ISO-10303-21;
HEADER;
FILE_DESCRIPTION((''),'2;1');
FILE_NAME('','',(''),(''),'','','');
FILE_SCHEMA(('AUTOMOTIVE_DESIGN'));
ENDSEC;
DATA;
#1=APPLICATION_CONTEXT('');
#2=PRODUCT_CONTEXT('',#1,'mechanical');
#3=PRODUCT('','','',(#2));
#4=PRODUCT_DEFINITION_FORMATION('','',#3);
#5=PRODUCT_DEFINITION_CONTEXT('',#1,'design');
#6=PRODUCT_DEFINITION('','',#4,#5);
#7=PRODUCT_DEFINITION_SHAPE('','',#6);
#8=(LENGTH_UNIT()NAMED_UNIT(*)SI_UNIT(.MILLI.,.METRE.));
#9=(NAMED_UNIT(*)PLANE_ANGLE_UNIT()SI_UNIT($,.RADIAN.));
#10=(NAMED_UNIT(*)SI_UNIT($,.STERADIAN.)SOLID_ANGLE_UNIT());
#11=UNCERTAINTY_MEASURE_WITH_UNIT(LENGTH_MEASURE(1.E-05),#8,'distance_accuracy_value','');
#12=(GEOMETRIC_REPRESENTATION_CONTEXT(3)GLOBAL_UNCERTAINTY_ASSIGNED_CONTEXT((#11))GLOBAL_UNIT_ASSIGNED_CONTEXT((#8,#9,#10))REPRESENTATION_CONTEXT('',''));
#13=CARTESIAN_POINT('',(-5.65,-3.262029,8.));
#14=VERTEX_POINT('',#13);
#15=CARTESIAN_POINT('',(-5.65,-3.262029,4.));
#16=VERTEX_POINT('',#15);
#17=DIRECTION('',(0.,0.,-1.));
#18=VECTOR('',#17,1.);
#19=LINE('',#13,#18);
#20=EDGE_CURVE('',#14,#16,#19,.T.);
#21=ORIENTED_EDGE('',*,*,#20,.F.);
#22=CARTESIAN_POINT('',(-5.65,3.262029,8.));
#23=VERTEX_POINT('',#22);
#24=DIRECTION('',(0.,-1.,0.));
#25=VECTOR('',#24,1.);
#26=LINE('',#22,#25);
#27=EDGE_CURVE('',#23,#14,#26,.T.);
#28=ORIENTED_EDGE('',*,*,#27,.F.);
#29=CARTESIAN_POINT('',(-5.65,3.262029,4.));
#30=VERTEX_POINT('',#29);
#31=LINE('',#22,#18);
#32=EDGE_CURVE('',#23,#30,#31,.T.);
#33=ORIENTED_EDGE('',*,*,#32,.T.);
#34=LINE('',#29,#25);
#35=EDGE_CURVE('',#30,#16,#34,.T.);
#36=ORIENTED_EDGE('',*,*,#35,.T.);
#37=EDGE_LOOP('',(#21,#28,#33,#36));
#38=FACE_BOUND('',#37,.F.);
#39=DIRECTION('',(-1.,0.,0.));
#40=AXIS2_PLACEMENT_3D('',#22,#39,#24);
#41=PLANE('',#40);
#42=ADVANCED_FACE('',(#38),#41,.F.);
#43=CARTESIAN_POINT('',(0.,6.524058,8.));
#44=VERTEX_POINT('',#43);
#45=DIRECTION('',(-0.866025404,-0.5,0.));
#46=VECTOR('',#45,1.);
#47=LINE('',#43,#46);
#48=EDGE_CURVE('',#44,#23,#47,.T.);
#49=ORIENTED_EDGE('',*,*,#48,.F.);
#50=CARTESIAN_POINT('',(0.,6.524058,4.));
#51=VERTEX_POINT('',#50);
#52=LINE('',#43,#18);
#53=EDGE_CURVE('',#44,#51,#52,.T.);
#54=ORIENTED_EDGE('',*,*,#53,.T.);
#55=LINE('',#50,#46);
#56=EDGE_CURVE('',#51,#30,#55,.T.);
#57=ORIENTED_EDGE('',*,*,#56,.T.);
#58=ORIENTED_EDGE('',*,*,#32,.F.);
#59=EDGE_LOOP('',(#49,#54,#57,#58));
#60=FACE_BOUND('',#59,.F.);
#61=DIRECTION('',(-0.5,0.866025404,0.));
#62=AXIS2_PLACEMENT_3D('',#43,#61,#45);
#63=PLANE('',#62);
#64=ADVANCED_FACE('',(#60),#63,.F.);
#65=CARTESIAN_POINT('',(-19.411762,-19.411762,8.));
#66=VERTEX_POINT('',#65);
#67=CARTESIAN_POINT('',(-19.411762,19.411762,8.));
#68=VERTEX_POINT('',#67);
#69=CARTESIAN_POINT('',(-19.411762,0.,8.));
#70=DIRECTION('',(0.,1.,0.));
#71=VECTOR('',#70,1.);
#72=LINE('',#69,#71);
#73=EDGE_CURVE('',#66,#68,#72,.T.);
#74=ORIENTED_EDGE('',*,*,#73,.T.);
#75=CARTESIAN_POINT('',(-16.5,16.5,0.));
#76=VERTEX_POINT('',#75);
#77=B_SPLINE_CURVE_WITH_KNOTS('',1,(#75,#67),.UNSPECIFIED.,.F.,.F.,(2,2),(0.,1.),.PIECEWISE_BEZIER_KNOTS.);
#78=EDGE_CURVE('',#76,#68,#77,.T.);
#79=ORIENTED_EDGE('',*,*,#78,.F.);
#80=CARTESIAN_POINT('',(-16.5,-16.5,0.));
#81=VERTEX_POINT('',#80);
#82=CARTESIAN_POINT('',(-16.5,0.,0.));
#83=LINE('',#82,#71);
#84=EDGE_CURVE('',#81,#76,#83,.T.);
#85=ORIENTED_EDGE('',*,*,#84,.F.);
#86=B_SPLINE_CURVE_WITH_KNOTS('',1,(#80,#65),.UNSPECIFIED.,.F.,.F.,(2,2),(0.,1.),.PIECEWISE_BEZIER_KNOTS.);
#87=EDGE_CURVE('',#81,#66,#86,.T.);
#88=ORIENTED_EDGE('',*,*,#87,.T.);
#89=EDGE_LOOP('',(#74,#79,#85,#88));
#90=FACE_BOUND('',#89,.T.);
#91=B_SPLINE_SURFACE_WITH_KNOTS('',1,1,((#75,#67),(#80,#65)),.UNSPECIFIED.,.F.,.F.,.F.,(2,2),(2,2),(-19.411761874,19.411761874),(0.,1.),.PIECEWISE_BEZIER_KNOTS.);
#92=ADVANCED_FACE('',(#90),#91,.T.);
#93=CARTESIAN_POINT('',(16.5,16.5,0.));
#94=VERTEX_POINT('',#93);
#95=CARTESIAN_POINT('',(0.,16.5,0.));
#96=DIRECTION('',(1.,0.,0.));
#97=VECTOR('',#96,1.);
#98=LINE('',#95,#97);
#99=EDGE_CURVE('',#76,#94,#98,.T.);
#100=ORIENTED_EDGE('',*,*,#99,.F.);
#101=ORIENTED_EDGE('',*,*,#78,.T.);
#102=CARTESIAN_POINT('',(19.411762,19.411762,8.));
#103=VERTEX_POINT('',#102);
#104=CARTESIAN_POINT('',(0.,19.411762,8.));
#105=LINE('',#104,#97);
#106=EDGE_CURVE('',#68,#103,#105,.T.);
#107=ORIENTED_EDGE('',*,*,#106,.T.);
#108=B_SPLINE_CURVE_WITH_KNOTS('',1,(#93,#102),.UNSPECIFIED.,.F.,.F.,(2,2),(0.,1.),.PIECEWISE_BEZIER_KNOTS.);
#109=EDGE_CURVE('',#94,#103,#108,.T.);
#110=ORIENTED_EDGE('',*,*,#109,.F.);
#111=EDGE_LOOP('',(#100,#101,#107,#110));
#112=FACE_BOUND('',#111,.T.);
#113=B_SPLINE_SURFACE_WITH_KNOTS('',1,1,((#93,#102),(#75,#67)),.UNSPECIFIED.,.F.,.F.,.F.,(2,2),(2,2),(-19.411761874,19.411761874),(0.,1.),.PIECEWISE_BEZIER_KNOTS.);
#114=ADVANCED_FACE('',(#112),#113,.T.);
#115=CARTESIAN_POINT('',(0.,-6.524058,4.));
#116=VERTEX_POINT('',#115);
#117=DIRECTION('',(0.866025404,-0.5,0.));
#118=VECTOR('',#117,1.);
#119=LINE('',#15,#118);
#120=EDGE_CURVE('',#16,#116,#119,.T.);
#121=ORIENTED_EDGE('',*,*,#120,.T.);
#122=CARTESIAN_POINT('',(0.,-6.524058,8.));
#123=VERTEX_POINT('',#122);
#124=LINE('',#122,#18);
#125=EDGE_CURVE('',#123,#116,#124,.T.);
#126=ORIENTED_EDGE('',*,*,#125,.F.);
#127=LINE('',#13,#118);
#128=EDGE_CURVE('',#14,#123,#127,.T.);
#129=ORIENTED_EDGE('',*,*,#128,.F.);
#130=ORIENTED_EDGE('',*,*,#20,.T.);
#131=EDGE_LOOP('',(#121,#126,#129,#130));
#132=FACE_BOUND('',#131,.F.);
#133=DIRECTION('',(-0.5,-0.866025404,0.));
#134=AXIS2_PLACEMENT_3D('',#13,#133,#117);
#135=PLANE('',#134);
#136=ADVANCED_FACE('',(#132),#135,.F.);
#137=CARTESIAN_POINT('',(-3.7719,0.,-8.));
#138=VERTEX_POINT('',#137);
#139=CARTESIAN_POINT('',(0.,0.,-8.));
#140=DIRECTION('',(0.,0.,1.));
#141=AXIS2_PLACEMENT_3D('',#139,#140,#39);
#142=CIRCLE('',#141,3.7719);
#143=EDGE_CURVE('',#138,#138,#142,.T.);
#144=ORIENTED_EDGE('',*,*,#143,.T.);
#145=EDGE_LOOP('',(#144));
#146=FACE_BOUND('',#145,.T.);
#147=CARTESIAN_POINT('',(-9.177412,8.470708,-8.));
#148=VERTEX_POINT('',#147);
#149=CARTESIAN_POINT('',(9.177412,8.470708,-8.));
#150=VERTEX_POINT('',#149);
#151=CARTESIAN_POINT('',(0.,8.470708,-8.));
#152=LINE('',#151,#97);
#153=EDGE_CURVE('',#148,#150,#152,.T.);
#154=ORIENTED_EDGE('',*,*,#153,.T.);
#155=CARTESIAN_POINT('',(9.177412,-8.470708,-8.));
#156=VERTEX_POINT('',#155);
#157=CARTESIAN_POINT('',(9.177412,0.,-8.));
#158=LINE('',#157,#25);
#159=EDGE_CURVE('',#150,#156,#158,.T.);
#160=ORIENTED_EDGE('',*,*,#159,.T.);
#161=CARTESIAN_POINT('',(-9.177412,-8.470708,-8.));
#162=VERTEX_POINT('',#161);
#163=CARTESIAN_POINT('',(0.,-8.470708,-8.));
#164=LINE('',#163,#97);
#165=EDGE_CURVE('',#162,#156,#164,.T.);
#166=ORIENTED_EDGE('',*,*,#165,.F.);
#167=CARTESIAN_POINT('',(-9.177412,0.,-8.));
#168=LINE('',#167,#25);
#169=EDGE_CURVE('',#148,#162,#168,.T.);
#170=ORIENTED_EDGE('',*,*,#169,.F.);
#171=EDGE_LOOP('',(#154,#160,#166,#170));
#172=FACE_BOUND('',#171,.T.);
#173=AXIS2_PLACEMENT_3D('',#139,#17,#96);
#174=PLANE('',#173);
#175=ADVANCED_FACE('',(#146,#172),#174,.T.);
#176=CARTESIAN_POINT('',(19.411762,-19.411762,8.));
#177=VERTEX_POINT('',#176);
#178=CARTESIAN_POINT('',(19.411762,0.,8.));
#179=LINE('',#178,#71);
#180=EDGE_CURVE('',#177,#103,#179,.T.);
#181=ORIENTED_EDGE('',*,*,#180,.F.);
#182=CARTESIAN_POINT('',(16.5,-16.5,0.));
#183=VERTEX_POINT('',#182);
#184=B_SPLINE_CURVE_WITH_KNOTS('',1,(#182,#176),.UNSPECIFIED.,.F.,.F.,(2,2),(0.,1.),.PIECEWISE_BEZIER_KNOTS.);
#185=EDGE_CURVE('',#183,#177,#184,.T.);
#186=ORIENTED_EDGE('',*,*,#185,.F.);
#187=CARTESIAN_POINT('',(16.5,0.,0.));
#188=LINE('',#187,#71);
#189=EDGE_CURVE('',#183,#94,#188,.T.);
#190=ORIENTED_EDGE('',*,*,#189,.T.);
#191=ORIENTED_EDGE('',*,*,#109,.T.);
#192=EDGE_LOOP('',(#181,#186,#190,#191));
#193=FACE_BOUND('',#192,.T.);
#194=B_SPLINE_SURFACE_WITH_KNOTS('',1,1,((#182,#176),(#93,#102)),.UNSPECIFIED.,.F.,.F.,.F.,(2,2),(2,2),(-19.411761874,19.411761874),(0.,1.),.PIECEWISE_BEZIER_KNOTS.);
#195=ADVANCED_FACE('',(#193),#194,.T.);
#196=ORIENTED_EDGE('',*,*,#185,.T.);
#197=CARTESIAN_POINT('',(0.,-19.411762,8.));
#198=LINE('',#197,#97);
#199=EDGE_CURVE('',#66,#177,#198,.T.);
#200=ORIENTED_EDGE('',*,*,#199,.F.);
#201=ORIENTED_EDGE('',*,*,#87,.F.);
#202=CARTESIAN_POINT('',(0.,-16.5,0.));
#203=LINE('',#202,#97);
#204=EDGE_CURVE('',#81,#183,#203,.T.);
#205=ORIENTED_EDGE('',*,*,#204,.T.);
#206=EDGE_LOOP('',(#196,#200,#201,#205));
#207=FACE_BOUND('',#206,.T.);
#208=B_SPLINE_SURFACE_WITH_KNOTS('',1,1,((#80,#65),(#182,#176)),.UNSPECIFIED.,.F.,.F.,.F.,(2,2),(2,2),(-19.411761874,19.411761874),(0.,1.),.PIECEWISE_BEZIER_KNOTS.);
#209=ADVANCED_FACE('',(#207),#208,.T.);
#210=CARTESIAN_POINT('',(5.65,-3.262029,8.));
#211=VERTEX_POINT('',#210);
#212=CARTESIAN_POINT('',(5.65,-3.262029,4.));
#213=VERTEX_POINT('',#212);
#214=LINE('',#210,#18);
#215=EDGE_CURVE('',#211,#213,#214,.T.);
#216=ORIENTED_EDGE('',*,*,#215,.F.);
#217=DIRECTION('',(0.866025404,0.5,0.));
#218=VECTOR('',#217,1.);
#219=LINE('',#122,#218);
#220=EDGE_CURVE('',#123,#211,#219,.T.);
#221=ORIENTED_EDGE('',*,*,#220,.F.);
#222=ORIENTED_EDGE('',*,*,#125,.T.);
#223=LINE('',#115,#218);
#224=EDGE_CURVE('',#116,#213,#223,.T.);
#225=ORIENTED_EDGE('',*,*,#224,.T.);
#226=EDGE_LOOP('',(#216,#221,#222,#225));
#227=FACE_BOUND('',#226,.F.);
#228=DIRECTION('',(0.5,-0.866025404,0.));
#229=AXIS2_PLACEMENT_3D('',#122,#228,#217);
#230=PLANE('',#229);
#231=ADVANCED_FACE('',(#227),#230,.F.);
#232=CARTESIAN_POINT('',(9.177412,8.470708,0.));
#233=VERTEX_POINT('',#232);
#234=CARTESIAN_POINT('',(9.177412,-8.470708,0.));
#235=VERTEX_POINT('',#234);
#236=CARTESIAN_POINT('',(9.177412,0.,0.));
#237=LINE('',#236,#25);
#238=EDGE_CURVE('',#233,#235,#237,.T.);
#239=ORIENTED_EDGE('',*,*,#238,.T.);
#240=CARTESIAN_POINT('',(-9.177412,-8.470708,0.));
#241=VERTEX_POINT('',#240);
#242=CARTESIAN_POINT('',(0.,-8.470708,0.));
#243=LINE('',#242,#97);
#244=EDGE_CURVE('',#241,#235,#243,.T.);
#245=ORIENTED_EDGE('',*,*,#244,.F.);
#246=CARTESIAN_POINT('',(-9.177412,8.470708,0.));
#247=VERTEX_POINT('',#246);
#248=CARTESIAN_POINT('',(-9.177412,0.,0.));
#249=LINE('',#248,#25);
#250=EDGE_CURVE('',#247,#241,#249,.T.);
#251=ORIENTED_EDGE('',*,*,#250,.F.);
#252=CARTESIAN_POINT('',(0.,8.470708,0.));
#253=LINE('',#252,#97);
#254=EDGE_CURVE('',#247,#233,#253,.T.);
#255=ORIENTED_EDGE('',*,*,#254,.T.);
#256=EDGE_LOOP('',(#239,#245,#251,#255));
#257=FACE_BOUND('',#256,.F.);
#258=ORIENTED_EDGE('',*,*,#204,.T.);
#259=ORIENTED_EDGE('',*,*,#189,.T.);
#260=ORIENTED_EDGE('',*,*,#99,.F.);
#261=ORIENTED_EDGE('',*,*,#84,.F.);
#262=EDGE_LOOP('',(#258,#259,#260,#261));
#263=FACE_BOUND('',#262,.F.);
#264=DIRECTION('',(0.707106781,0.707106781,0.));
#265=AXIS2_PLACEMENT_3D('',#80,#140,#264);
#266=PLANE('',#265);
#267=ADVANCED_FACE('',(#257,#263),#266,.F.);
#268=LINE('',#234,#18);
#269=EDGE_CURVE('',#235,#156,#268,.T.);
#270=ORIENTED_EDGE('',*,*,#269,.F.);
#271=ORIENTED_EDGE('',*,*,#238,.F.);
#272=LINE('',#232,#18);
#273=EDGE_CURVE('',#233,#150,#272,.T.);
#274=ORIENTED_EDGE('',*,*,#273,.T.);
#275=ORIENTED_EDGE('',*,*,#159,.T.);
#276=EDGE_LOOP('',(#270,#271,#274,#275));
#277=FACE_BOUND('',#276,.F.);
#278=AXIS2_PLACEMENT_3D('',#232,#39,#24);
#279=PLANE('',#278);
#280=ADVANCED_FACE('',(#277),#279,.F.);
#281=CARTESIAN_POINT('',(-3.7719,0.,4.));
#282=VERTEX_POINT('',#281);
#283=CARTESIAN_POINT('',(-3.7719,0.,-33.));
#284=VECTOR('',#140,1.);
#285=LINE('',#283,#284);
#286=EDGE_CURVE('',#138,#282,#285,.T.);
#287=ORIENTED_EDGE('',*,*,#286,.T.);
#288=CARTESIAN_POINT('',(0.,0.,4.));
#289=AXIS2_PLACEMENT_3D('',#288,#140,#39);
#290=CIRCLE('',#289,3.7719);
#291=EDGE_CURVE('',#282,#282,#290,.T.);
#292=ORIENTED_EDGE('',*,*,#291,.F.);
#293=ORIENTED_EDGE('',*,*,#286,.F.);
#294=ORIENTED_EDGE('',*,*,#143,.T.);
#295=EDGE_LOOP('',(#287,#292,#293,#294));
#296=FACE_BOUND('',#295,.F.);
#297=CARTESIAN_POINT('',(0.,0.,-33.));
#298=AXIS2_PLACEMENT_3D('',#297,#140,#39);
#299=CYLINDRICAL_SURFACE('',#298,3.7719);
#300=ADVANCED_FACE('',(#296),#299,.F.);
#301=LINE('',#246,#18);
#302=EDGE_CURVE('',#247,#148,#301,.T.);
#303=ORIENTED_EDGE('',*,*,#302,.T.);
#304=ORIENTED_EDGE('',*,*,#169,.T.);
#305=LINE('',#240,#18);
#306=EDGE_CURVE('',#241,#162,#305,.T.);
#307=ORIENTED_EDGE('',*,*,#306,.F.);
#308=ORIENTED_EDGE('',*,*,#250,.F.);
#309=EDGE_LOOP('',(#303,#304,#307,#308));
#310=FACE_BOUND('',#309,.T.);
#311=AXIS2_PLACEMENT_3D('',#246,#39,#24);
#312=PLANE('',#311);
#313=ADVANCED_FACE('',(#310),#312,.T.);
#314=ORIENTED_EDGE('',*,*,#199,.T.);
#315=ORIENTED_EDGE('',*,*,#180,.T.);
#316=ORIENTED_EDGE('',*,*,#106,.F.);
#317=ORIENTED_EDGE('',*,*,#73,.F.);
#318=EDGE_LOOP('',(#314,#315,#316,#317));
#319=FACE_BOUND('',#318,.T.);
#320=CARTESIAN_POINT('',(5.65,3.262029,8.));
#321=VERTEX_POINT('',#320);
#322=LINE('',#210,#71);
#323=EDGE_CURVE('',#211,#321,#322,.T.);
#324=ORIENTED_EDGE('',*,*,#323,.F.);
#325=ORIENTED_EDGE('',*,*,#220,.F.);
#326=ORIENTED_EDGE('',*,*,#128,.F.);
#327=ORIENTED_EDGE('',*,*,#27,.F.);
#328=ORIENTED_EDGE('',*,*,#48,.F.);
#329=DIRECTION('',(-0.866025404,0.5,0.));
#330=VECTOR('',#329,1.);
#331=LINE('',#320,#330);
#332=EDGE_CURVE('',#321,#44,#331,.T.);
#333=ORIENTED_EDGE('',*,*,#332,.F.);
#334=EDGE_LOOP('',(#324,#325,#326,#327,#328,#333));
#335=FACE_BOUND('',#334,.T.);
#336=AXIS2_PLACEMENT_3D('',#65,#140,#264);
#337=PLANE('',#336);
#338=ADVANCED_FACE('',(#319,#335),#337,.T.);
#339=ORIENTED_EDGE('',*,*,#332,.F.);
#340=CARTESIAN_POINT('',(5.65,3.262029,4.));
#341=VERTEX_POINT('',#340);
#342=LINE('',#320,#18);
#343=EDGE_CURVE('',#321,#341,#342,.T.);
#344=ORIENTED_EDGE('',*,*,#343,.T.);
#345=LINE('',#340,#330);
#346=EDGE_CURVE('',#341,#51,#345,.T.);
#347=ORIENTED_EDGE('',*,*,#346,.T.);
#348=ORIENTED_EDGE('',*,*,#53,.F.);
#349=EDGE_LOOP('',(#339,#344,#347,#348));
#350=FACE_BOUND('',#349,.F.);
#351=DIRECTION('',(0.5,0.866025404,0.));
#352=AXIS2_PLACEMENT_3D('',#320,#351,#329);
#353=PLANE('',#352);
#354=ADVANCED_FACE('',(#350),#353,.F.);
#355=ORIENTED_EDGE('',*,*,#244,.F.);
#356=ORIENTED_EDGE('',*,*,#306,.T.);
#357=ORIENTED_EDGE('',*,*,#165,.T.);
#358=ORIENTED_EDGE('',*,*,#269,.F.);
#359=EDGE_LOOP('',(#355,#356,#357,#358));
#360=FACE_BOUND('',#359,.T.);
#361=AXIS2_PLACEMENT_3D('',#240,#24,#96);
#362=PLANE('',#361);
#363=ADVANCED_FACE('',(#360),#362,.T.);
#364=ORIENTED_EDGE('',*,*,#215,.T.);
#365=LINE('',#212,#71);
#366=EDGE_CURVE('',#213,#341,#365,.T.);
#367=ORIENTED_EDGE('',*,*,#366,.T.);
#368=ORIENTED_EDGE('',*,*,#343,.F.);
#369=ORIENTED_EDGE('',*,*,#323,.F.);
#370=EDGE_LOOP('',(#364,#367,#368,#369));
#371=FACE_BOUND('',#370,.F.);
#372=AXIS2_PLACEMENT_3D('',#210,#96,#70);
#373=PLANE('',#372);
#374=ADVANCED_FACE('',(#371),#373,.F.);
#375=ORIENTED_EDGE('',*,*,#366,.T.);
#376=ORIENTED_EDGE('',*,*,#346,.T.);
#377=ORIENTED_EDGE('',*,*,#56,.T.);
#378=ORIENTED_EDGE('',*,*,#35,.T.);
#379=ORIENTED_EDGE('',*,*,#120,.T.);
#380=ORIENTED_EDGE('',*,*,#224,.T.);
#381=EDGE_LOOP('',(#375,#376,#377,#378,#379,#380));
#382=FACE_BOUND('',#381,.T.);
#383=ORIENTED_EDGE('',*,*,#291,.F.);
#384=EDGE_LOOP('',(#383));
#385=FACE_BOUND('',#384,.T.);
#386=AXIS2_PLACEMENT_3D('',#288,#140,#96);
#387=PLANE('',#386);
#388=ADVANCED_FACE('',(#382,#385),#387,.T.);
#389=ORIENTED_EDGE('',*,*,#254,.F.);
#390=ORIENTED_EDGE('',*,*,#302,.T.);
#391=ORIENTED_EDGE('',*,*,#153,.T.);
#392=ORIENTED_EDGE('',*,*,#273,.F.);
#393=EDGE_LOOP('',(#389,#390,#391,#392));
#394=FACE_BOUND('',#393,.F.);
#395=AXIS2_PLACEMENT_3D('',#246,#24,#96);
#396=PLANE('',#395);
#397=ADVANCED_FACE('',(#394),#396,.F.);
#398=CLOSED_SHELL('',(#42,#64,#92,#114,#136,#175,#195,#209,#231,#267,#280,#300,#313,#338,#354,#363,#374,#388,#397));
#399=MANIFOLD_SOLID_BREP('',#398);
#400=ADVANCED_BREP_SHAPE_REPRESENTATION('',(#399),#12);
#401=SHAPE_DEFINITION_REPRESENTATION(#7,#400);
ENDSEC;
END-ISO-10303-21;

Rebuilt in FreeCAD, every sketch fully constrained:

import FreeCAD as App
import Part
import Sketcher

V = App.Vector
Q = App.Units.Quantity

doc = App.newDocument("Part")
params = doc.addObject("Spreadsheet::Sheet", "Params")
for row, (alias, value) in enumerate([
    ("sketch1_width", "33 mm"),
    ("pad1_length", "8 mm"),
    ("pad1_taper", "20 deg"),
    ("pocket1_length", "4 mm"),
    ("pad2_length", "8 mm"),
    ("hole_diameter", "7.5438 mm"),
    ("hole_depth", "25 mm"),
], start=1):
    params.set(f"A{row}", alias)
    params.set(f"B{row}", "=" + value)
    params.setAlias(f"B{row}", alias)

body = doc.addObject("PartDesign::Body", "Body")

sketch1 = doc.addObject("Sketcher::SketchObject", "Sketch")
body.addObject(sketch1)
sketch1.AttachmentSupport = (doc.XY_Plane, [""])
sketch1.MapMode = "FlatFace"
sketch1.addGeometry([
    Part.LineSegment(V(-16, 16, 0), V(-16, -16, 0)),
    Part.LineSegment(V(-16, -16, 0), V(16, -16, 0)),
    Part.LineSegment(V(16, -16, 0), V(16, 16, 0)),
    Part.LineSegment(V(16, 16, 0), V(-16, 16, 0)),
], False)
sketch1.addConstraint([
    Sketcher.Constraint("Coincident", 0, 2, 1, 1),
    Sketcher.Constraint("Coincident", 1, 2, 2, 1),
    Sketcher.Constraint("Coincident", 2, 2, 3, 1),
    Sketcher.Constraint("Coincident", 3, 2, 0, 1),
    Sketcher.Constraint("Vertical", 0),
    Sketcher.Constraint("Horizontal", 1),
    Sketcher.Constraint("Vertical", 2),
    Sketcher.Constraint("Horizontal", 3),
    Sketcher.Constraint("Symmetric", 0, 2, 2, 2, -1, 1),
    Sketcher.Constraint("Equal", 3, 0),
    Sketcher.Constraint("DistanceX", 1, 1, 1, 2, 33.0),
])
sketch1.setExpression("Constraints[10]", "Params.sketch1_width")
pad1 = doc.addObject("PartDesign::Pad", "Pad")
body.addObject(pad1)
pad1.Profile = sketch1
pad1.setExpression("Length", "Params.pad1_length")
pad1.setExpression("TaperAngle", "Params.pad1_taper")

sketch2 = doc.addObject("Sketcher::SketchObject", "Sketch001")
body.addObject(sketch2)
sketch2.AttachmentSupport = (doc.XY_Plane, [""])
sketch2.MapMode = "FlatFace"
sketch2.AttachmentOffset = App.Placement(V(0, 0, 8), App.Rotation())
sketch2.addGeometry([
    Part.LineSegment(V(6, -3, 0), V(6, 3, 0)),
    Part.LineSegment(V(6, 3, 0), V(0, 7, 0)),
    Part.LineSegment(V(0, 7, 0), V(-6, 3, 0)),
    Part.LineSegment(V(-6, 3, 0), V(-6, -3, 0)),
    Part.LineSegment(V(-6, -3, 0), V(0, -7, 0)),
    Part.LineSegment(V(0, -7, 0), V(6, -3, 0)),
], False)
sketch2.addConstraint([
    Sketcher.Constraint("Coincident", 0, 2, 1, 1),
    Sketcher.Constraint("Coincident", 1, 2, 2, 1),
    Sketcher.Constraint("Coincident", 2, 2, 3, 1),
    Sketcher.Constraint("Coincident", 3, 2, 4, 1),
    Sketcher.Constraint("Coincident", 4, 2, 5, 1),
    Sketcher.Constraint("Coincident", 5, 2, 0, 1),
    Sketcher.Constraint("Vertical", 0),
    Sketcher.Constraint("Vertical", 3),
    Sketcher.Constraint("Symmetric", 0, 2, 3, 2, -1, 1),
    Sketcher.Constraint("Symmetric", 1, 2, 4, 2, -1, 1),
    Sketcher.Constraint("PointOnObject", 1, 2, -2),
    Sketcher.Constraint("Parallel", 2, 5),
    Sketcher.Constraint("Horizontal", 0, 2, 2, 2),
    Sketcher.Constraint("Angle", 1, Q("150 deg")),
    Sketcher.Constraint("DistanceX", 2, 2, 0, 2, 11.3),
    Sketcher.Constraint("DistanceY", 0, 1, 0, 2, 6.524058),
])
pocket1 = doc.addObject("PartDesign::Pocket", "Pocket")
body.addObject(pocket1)
pocket1.Profile = sketch2
pocket1.setExpression("Length", "Params.pocket1_length")

sketch3 = doc.addObject("Sketcher::SketchObject", "Sketch002")
body.addObject(sketch3)
sketch3.AttachmentSupport = (doc.XY_Plane, [""])
sketch3.MapMode = "FlatFace"
sketch3.addGeometry([
    Part.LineSegment(V(-9, -8, 0), V(-9, 8, 0)),
    Part.LineSegment(V(-9, 8, 0), V(9, 8, 0)),
    Part.LineSegment(V(9, 8, 0), V(9, -8, 0)),
    Part.LineSegment(V(9, -8, 0), V(-9, -8, 0)),
], False)
sketch3.addConstraint([
    Sketcher.Constraint("Coincident", 0, 2, 1, 1),
    Sketcher.Constraint("Coincident", 1, 2, 2, 1),
    Sketcher.Constraint("Coincident", 2, 2, 3, 1),
    Sketcher.Constraint("Coincident", 3, 2, 0, 1),
    Sketcher.Constraint("Vertical", 0),
    Sketcher.Constraint("Horizontal", 1),
    Sketcher.Constraint("Vertical", 2),
    Sketcher.Constraint("Horizontal", 3),
    Sketcher.Constraint("Symmetric", 0, 2, 2, 2, -1, 1),
    Sketcher.Constraint("DistanceX", 1, 1, 1, 2, 18.354824),
    Sketcher.Constraint("DistanceY", 0, 1, 0, 2, 16.941415),
])
pad2 = doc.addObject("PartDesign::Pad", "Pad001")
body.addObject(pad2)
pad2.Profile = sketch3
pad2.setExpression("Length", "Params.pad2_length")
pad2.Reversed = True

sketch4 = doc.addObject("Sketcher::SketchObject", "Sketch003")
body.addObject(sketch4)
sketch4.AttachmentSupport = (doc.XY_Plane, [""])
sketch4.MapMode = "FlatFace"
sketch4.AttachmentOffset = App.Placement(V(0, 0, -8), App.Rotation())
sketch4.addGeometry(Part.Circle(V(0, 0, 0), V(0, 0, 1), 3.8), False)
sketch4.addConstraint([
    Sketcher.Constraint("Coincident", 0, 3, -1, 1),
    Sketcher.Constraint("Diameter", 0, 7.5438),
])
doc.recompute()
hole = doc.addObject("PartDesign::Hole", "Hole")
body.addObject(hole)
hole.Profile = sketch4
hole.ThreadType = "None"
hole.setExpression("Diameter", "Params.hole_diameter")
hole.DepthType = "Dimension"
hole.setExpression("Depth", "Params.hole_depth")
hole.DrillPoint = "Angled"
hole.DrillPointAngle = 118
hole.Reversed = True

doc.recompute()
